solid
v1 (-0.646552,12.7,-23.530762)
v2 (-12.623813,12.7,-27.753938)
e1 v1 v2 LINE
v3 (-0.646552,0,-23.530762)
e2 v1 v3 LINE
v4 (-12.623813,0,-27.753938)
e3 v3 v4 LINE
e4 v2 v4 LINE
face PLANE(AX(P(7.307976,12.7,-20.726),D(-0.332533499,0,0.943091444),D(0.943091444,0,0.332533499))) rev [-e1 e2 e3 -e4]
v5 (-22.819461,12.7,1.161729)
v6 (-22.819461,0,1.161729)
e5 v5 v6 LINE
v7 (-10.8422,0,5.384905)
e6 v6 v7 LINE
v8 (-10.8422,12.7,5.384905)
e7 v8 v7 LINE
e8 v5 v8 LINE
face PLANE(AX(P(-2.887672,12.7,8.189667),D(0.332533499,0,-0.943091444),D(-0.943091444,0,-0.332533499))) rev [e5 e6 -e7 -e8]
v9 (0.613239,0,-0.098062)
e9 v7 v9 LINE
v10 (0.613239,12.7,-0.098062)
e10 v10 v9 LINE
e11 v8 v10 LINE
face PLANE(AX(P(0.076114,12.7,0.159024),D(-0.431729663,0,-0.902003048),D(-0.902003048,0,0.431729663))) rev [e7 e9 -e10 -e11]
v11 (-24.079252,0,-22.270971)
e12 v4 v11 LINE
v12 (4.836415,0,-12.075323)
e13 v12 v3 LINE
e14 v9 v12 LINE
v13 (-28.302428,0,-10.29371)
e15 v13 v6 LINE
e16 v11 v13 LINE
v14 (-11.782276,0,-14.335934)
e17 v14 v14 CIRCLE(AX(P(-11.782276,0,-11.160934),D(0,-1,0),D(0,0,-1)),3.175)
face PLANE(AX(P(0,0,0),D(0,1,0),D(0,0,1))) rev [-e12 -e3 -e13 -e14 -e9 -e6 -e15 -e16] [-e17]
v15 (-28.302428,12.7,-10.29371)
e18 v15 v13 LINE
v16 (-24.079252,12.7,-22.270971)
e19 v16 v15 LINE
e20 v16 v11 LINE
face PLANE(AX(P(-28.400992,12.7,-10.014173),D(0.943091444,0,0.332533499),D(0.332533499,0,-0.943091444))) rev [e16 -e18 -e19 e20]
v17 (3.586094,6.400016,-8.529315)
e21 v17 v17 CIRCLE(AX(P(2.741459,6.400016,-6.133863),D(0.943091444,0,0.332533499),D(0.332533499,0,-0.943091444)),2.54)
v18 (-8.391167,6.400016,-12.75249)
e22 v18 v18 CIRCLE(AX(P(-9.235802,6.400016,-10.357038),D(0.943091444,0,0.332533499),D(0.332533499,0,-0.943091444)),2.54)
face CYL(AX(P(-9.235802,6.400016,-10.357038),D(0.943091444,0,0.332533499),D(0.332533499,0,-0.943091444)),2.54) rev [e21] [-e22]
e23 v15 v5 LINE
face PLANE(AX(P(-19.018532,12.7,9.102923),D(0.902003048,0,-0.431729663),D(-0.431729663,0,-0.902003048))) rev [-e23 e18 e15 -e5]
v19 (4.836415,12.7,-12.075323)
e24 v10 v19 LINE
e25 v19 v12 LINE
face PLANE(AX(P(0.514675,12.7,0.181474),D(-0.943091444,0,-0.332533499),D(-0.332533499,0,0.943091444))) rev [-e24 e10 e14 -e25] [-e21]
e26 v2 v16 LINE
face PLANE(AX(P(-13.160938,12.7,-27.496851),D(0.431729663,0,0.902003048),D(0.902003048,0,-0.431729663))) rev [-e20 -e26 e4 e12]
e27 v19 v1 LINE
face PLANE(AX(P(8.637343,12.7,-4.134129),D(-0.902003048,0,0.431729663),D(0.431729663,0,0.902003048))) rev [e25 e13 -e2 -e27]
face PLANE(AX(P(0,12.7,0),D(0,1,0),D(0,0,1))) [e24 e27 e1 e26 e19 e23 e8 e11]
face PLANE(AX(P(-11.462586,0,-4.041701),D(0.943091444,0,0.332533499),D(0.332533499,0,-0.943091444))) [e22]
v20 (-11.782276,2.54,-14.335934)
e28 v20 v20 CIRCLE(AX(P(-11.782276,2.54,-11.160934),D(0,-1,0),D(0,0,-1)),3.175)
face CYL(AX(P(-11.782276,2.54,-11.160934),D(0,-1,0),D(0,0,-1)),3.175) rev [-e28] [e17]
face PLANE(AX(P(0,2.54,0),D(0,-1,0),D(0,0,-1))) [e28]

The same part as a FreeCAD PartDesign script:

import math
import FreeCAD as App
import Part
import Sketcher

V = App.Vector
Q = App.Units.Quantity


def add_polygon(sketch, points):
    """Adds a closed chain of lines whose ends are joined by coincident constraints."""
    first, n = sketch.GeometryCount, len(points)
    for a, b in zip(points, points[1:] + points[:1]):
        sketch.addGeometry(Part.LineSegment(App.Vector(*a, 0), App.Vector(*b, 0)), False)
    for i in range(n):
        sketch.addConstraint(Sketcher.Constraint("Coincident", first + i, 2, first + (i + 1) % n, 1))

doc = App.newDocument("Part")
body = doc.addObject("PartDesign::Body", "Body")

sketch1 = doc.addObject("Sketcher::SketchObject", "Sketch")
body.addObject(sketch1)
sketch1.AttachmentSupport = (doc.XZ_Plane, [""])
sketch1.MapMode = "FlatFace"
add_polygon(sketch1, [(-11, 5), (1, 0), (5, -12), (-1, -24), (-13, -28), (-24, -22), (-28, -10), (-23, 1)])
sketch1.addConstraint(Sketcher.Constraint("Perpendicular", 0, 2))
sketch1.addConstraint(Sketcher.Constraint("Perpendicular", 1, 3))
sketch1.addConstraint(Sketcher.Constraint("Perpendicular", 2, 4))
sketch1.addConstraint(Sketcher.Constraint("Perpendicular", 3, 5))
sketch1.addConstraint(Sketcher.Constraint("Perpendicular", 4, 6))
sketch1.addConstraint(Sketcher.Constraint("Perpendicular", 5, 7))
sketch1.addConstraint(Sketcher.Constraint("Equal", 0, 1))
sketch1.addConstraint(Sketcher.Constraint("Equal", 1, 2))
sketch1.addConstraint(Sketcher.Constraint("Equal", 2, 3))
sketch1.addConstraint(Sketcher.Constraint("Equal", 3, 4))
sketch1.addConstraint(Sketcher.Constraint("Equal", 4, 5))
sketch1.addConstraint(Sketcher.Constraint("Distance", 0, Q("0.5 in")))
sketch1.addConstraint(Sketcher.Constraint("DistanceX", 7, 2, -1, 1, Q("10.8422 mm")))
sketch1.addConstraint(Sketcher.Constraint("DistanceY", 2, 2, 0, 2, Q("23.4327 mm")))
sketch1.addConstraint(Sketcher.Constraint("DistanceX", -1, 1, 0, 2, Q("0.613239 mm")))
sketch1.addConstraint(Sketcher.Constraint("DistanceY", 4, 2, -1, 1, Q("22.270971 mm")))
pad1 = doc.addObject("PartDesign::Pad", "Pad")
body.addObject(pad1)
pad1.Profile = sketch1
pad1.Length = Q("0.5 in")
pad1.Reversed = True

sketch2 = doc.addObject("Sketcher::SketchObject", "Sketch001")
body.addObject(sketch2)
sketch2.Placement = App.Placement(V(0.514675, 0, 0.181474), App.Rotation(V(0.332533499, 0, -0.943091444), V(0, 1, 0), V(0.943091444, 0, 0.332533499), "ZXY"))
sketch2.addGeometry(Part.ArcOfCircle(Part.Circle(V(6.7, 6.4, 0), V(0, 0, 1), 2.5), math.radians(45), math.radians(137)), False)
sketch2.addGeometry(Part.ArcOfCircle(Part.Circle(V(6.7, 6.4, 0), V(0, 0, 1), 2.5), math.radians(137), math.radians(225)), False)
sketch2.addGeometry(Part.ArcOfCircle(Part.Circle(V(6.7, 6.4, 0), V(0, 0, 1), 2.5), math.radians(-135), math.radians(-47)), False)
sketch2.addGeometry(Part.ArcOfCircle(Part.Circle(V(6.7, 6.4, 0), V(0, 0, 1), 2.5), math.radians(-47), math.radians(0)), False)
sketch2.addGeometry(Part.ArcOfCircle(Part.Circle(V(6.7, 6.4, 0), V(0, 0, 1), 2.5), math.radians(0), math.radians(45)), False)
sketch2.addConstraint(Sketcher.Constraint("Tangent", 0, 2, 1, 1))
sketch2.addConstraint(Sketcher.Constraint("Tangent", 1, 2, 2, 1))
sketch2.addConstraint(Sketcher.Constraint("Tangent", 2, 2, 3, 1))
sketch2.addConstraint(Sketcher.Constraint("Tangent", 3, 2, 4, 1))
sketch2.addConstraint(Sketcher.Constraint("Tangent", 4, 2, 0, 1))
sketch2.addConstraint(Sketcher.Constraint("Coincident", 2, 3, 0, 3))
sketch2.addConstraint(Sketcher.Constraint("Horizontal", 4, 3, 3, 2))
sketch2.addConstraint(Sketcher.Constraint("Radius", 0, Q("0.1 in")))
sketch2.addConstraint(Sketcher.Constraint("DistanceX", -1, 1, 0, 3, Q("6.69642 mm")))
sketch2.addConstraint(Sketcher.Constraint("DistanceX", -1, 1, 0, 2, Q("4.851049 mm")))
sketch2.addConstraint(Sketcher.Constraint("DistanceX", -1, 1, 1, 2, Q("4.900369 mm")))
sketch2.addConstraint(Sketcher.Constraint("DistanceX", -1, 1, 2, 2, Q("8.441759 mm")))
sketch2.addConstraint(Sketcher.Constraint("DistanceX", -1, 1, 4, 2, Q("8.492472 mm")))
sketch2.addConstraint(Sketcher.Constraint("DistanceY", -1, 1, 0, 3, Q("6.400016 mm")))
pocket1 = doc.addObject("PartDesign::Pocket", "Pocket")
body.addObject(pocket1)
pocket1.Profile = sketch2
pocket1.Length = Q("0.5 in")

sketch3 = doc.addObject("Sketcher::SketchObject", "Sketch002")
body.addObject(sketch3)
sketch3.AttachmentSupport = (doc.XZ_Plane, [""])
sketch3.MapMode = "FlatFace"
sketch3.addGeometry(Part.ArcOfCircle(Part.Circle(V(-11.78, -11.16, 0), V(0, 0, 1), 3.17), math.radians(-3.45), math.radians(0)), False)
sketch3.addGeometry(Part.ArcOfCircle(Part.Circle(V(-11.78, -11.16, 0), V(0, 0, 1), 3.17), math.radians(0), math.radians(132)), False)
sketch3.addGeometry(Part.ArcOfCircle(Part.Circle(V(-11.78, -11.16, 0), V(0, 0, 1), 3.17), math.radians(132), math.radians(177)), False)
sketch3.addGeometry(Part.ArcOfCircle(Part.Circle(V(-11.78, -11.16, 0), V(0, 0, 1), 3.17), math.radians(177), math.radians(312)), False)
sketch3.addGeometry(Part.ArcOfCircle(Part.Circle(V(-11.78, -11.16, 0), V(0, 0, 1), 3.17), math.radians(-48), math.radians(-3)), False)
sketch3.addConstraint(Sketcher.Constraint("Tangent", 0, 2, 1, 1))
sketch3.addConstraint(Sketcher.Constraint("Tangent", 1, 2, 2, 1))
sketch3.addConstraint(Sketcher.Constraint("Tangent", 2, 2, 3, 1))
sketch3.addConstraint(Sketcher.Constraint("Tangent", 3, 2, 4, 1))
sketch3.addConstraint(Sketcher.Constraint("Tangent", 4, 2, 0, 1))
sketch3.addConstraint(Sketcher.Constraint("Coincident", 2, 3, 0, 3))
sketch3.addConstraint(Sketcher.Constraint("Horizontal", 4, 3, 0, 2))
sketch3.addConstraint(Sketcher.Constraint("Radius", 0, Q("0.125 in")))
sketch3.addConstraint(Sketcher.Constraint("DistanceY", 1, 2, -1, 1, Q("8.801249 mm")))
sketch3.addConstraint(Sketcher.Constraint("DistanceX", 2, 2, -1, 1, Q("14.953751 mm")))
sketch3.addConstraint(Sketcher.Constraint("DistanceX", 3, 2, -1, 1, Q("9.658009 mm")))
sketch3.addConstraint(Sketcher.Constraint("DistanceY", 3, 2, -1, 1, Q("13.52062 mm")))
sketch3.addConstraint(Sketcher.Constraint("DistanceY", 2, 3, 2, 2, Q("0.149572 mm")))
sketch3.addConstraint(Sketcher.Constraint("DistanceX", 4, 2, 0, 2, Q("0.005769 mm")))
pocket2 = doc.addObject("PartDesign::Pocket", "Pocket001")
body.addObject(pocket2)
pocket2.Profile = sketch3
pocket2.Length = Q("0.1 in")

doc.recompute()
